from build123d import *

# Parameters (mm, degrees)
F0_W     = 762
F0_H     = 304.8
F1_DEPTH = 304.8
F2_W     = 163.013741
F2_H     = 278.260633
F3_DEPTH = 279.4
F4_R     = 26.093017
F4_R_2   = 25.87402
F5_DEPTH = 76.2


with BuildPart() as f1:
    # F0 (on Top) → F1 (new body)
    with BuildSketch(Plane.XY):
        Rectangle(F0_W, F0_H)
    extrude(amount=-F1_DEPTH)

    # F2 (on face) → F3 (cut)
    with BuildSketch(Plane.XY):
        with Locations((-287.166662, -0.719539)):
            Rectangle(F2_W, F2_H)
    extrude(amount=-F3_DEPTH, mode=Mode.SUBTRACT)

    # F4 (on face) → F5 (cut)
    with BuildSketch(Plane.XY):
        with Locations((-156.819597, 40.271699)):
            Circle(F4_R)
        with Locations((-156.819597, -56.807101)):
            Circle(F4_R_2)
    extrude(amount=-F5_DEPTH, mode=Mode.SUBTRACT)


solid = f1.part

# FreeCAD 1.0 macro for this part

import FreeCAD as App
import Part
import Sketcher
from FreeCAD import Vector
Q = App.Units.Quantity

doc = App.newDocument("Part")
params = doc.addObject("Spreadsheet::Sheet", "Params")
for row, (alias, value) in enumerate([
    ("sketch1_width", "30 in"),
    ("sketch1_height", "12 in"),
    ("pad1_length", "12 in"),
    ("pocket1_length", "11 in"),
    ("pocket2_length", "3 in"),
], start=1):
    params.set(f"A{row}", alias)
    params.set(f"B{row}", "=" + value)
    params.setAlias(f"B{row}", alias)

body = doc.addObject("PartDesign::Body", "Body")

# Sketch on XY plane
sketch1 = body.newObject("Sketcher::SketchObject", "Sketch")
sketch1.AttachmentSupport = (doc.getObject("XY_Plane"), [""])
sketch1.MapMode = "FlatFace"
sketch1.addGeometry(Part.LineSegment(Vector(-381, 152, 0), Vector(-381, -152, 0)), False)
sketch1.addGeometry(Part.LineSegment(Vector(-381, -152, 0), Vector(381, -152, 0)), False)
sketch1.addGeometry(Part.LineSegment(Vector(381, -152, 0), Vector(381, 152, 0)), False)
sketch1.addGeometry(Part.LineSegment(Vector(381, 152, 0), Vector(-381, 152, 0)), False)
sketch1.addConstraint(Sketcher.Constraint("Coincident", 0, 2, 1, 1))
sketch1.addConstraint(Sketcher.Constraint("Coincident", 1, 2, 2, 1))
sketch1.addConstraint(Sketcher.Constraint("Coincident", 2, 2, 3, 1))
sketch1.addConstraint(Sketcher.Constraint("Coincident", 3, 2, 0, 1))
sketch1.addConstraint(Sketcher.Constraint("Vertical", 0))
sketch1.addConstraint(Sketcher.Constraint("Horizontal", 1))
sketch1.addConstraint(Sketcher.Constraint("Vertical", 2))
sketch1.addConstraint(Sketcher.Constraint("Horizontal", 3))
sketch1.addConstraint(Sketcher.Constraint("Symmetric", 0, 2, 2, 2, -1, 1))
sketch1.addConstraint(Sketcher.Constraint("DistanceX", 1, 1, 1, 2, Q("30 in")))
sketch1.addConstraint(Sketcher.Constraint("DistanceY", 0, 2, 0, 1, Q("12 in")))
sketch1.setExpression("Constraints[9]", "Params.sketch1_width")
sketch1.setExpression("Constraints[10]", "Params.sketch1_height")
pad1 = body.newObject("PartDesign::Pad", "Pad")
pad1.Profile = sketch1
pad1.setExpression("Length", "Params.pad1_length")
pad1.Reversed = True

# Sketch on XY plane
sketch2 = body.newObject("Sketcher::SketchObject", "Sketch001")
sketch2.AttachmentSupport = (doc.getObject("XY_Plane"), [""])
sketch2.MapMode = "FlatFace"
sketch2.addGeometry(Part.LineSegment(Vector(-369, 138, 0), Vector(-369, -140, 0)), False)
sketch2.addGeometry(Part.LineSegment(Vector(-369, -140, 0), Vector(-206, -140, 0)), False)
sketch2.addGeometry(Part.LineSegment(Vector(-206, -140, 0), Vector(-206, 138, 0)), False)
sketch2.addGeometry(Part.LineSegment(Vector(-206, 138, 0), Vector(-369, 138, 0)), False)
sketch2.addConstraint(Sketcher.Constraint("Coincident", 0, 2, 1, 1))
sketch2.addConstraint(Sketcher.Constraint("Coincident", 1, 2, 2, 1))
sketch2.addConstraint(Sketcher.Constraint("Coincident", 2, 2, 3, 1))
sketch2.addConstraint(Sketcher.Constraint("Coincident", 3, 2, 0, 1))
sketch2.addConstraint(Sketcher.Constraint("Vertical", 0))
sketch2.addConstraint(Sketcher.Constraint("Horizontal", 1))
sketch2.addConstraint(Sketcher.Constraint("Vertical", 2))
sketch2.addConstraint(Sketcher.Constraint("Horizontal", 3))
sketch2.addConstraint(Sketcher.Constraint("DistanceY", 0, 2, -1, 1, Q("5.5058998 in")))
sketch2.addConstraint(Sketcher.Constraint("DistanceX", 1, 1, 1, 2, Q("163.013741 mm")))
sketch2.addConstraint(Sketcher.Constraint("DistanceY", 0, 2, 0, 1, Q("278.260633 mm")))
sketch2.addConstraint(Sketcher.Constraint("DistanceX", 1, 2, -1, 1, Q("205.659792 mm")))
pocket1 = body.newObject("PartDesign::Pocket", "Pocket")
pocket1.Profile = sketch2
pocket1.setExpression("Length", "Params.pocket1_length")

# Sketch on XY plane
sketch3 = body.newObject("Sketcher::SketchObject", "Sketch002")
sketch3.AttachmentSupport = (doc.getObject("XY_Plane"), [""])
sketch3.MapMode = "FlatFace"
sketch3.addGeometry(Part.Circle(Vector(-157, 40, 0), Vector(0, 0, 1), 26), False)
sketch3.addGeometry(Part.Circle(Vector(-157, -57, 0), Vector(0, 0, 1), 26), False)
sketch3.addConstraint(Sketcher.Constraint("Vertical", 0, 3, 1, 3))
sketch3.addConstraint(Sketcher.Constraint("Diameter", 1, Q("51.74804 mm")))
sketch3.addConstraint(Sketcher.Constraint("DistanceX", 0, 3, -1, 1, Q("6.1739999 in")))
sketch3.addConstraint(Sketcher.Constraint("DistanceY", 1, 3, 0, 3, Q("3.822 in")))
sketch3.addConstraint(Sketcher.Constraint("Diameter", 0, Q("52.186034 mm")))
sketch3.addConstraint(Sketcher.Constraint("DistanceY", -1, 1, 0, 3, Q("1.5855 in")))
pocket2 = body.newObject("PartDesign::Pocket", "Pocket001")
pocket2.Profile = sketch3
pocket2.setExpression("Length", "Params.pocket2_length")

doc.recompute()
